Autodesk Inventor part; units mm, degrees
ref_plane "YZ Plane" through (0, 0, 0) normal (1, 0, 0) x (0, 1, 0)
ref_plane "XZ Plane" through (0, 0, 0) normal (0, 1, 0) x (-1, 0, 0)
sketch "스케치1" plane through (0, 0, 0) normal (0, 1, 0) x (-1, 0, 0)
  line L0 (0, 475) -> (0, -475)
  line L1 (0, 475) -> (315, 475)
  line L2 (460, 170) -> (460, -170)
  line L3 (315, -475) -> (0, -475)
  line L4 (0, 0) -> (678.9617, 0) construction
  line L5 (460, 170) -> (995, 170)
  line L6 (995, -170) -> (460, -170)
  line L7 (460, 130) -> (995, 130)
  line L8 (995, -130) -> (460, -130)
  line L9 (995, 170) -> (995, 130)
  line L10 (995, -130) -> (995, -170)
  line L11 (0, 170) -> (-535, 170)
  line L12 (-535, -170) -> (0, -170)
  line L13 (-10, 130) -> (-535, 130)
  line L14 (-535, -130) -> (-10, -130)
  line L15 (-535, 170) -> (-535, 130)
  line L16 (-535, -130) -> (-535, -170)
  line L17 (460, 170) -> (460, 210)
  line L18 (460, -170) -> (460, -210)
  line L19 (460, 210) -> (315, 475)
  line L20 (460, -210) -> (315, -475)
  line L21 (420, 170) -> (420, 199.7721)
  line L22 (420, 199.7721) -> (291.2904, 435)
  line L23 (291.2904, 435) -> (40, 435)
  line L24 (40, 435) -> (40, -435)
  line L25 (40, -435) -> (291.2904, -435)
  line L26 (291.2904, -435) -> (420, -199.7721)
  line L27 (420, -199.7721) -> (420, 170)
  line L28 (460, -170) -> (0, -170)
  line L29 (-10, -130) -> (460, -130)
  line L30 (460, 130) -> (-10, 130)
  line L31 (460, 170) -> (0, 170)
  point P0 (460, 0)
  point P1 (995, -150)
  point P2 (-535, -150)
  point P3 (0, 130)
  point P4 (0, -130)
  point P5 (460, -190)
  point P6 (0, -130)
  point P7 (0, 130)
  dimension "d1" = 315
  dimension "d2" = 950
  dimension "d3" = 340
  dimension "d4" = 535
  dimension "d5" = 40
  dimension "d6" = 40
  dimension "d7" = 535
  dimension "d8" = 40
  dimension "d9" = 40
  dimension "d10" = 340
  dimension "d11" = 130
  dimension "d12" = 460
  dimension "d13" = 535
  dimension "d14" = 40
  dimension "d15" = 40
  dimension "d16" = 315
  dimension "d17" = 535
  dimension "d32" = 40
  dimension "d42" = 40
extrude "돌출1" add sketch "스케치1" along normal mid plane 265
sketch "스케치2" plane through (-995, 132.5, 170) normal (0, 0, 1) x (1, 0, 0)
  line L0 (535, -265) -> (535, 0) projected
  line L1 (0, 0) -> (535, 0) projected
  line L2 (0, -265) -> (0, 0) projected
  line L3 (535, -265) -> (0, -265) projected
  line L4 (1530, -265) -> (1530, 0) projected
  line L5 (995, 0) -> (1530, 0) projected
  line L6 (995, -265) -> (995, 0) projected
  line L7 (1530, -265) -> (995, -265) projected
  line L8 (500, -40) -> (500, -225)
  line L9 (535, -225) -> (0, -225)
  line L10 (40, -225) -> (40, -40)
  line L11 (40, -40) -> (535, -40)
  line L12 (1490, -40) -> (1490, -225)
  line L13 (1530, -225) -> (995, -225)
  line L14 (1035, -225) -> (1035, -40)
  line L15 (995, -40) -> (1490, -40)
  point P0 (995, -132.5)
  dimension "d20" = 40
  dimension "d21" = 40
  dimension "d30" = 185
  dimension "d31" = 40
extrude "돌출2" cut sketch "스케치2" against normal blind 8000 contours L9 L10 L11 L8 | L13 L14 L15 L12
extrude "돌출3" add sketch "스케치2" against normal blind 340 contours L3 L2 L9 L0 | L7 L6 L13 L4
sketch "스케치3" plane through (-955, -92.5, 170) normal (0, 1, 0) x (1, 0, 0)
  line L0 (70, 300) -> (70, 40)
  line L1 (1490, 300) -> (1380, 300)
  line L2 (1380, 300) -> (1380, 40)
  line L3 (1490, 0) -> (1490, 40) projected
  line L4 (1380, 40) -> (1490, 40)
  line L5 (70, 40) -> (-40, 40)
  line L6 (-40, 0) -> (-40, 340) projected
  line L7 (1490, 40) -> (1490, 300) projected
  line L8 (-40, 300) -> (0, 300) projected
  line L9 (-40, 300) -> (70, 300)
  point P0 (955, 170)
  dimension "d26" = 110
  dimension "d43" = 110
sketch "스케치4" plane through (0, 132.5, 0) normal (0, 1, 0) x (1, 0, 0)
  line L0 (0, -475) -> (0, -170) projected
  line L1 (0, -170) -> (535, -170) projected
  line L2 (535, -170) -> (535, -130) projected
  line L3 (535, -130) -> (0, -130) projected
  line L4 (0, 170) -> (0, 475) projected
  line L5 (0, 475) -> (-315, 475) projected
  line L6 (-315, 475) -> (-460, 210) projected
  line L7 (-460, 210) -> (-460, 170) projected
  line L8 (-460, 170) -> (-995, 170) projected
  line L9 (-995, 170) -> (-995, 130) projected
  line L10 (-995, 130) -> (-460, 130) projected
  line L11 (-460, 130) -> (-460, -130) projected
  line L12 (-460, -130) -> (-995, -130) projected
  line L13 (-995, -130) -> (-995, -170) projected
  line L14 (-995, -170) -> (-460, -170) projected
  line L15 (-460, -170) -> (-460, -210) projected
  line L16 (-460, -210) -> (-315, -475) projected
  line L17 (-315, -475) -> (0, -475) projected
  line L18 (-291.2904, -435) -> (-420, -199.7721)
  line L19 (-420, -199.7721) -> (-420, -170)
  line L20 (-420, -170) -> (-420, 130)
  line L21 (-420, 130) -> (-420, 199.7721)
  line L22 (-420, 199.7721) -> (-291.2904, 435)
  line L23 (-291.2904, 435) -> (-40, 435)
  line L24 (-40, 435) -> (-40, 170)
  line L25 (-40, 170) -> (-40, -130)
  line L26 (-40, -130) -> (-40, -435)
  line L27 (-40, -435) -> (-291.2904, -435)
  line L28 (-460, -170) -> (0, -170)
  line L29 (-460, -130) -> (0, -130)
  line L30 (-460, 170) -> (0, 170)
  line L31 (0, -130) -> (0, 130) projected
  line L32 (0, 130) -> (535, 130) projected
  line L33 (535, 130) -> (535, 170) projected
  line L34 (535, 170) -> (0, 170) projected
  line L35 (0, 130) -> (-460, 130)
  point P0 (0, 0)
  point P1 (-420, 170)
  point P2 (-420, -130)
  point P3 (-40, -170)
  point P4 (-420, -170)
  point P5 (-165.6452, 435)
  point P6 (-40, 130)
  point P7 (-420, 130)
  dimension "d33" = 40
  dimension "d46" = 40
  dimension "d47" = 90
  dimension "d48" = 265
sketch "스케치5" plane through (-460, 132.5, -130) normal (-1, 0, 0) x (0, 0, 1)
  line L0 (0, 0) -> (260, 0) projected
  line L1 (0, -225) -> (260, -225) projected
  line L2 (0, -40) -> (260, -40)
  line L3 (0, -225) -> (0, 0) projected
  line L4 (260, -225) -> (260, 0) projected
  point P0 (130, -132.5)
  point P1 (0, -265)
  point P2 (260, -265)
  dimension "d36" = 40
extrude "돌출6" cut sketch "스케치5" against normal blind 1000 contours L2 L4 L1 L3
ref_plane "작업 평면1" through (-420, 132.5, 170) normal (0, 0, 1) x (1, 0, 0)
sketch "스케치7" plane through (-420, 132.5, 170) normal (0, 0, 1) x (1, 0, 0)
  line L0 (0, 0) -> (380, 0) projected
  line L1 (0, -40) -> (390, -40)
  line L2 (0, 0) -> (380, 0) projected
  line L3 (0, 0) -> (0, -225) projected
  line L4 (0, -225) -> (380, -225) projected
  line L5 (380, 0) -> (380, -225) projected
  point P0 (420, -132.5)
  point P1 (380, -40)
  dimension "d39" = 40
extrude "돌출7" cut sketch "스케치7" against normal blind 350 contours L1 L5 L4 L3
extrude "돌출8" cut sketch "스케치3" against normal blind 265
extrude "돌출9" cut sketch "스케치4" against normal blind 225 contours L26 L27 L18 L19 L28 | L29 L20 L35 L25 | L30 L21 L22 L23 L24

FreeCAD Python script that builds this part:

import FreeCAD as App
import Part
import Sketcher
from FreeCAD import Vector
Q = App.Units.Quantity

doc = App.newDocument("Part")
body = doc.addObject("PartDesign::Body", "Body")

sketch1 = body.newObject("Sketcher::SketchObject", "Sketch")
sketch1.AttachmentSupport = (doc.getObject("XZ_Plane"), [""])
sketch1.MapMode = "FlatFace"
sketch1.addGeometry(Part.LineSegment(Vector(-315, 475, 0), Vector(0, 475, 0)), False)
sketch1.addGeometry(Part.LineSegment(Vector(0, 475, 0), Vector(0, 170, 0)), False)
sketch1.addGeometry(Part.LineSegment(Vector(0, 170, 0), Vector(535, 170, 0)), False)
sketch1.addGeometry(Part.LineSegment(Vector(535, 170, 0), Vector(535, 130, 0)), False)
sketch1.addGeometry(Part.LineSegment(Vector(535, 130, 0), Vector(0, 130, 0)), False)
sketch1.addGeometry(Part.LineSegment(Vector(0, 130, 0), Vector(0, -130, 0)), False)
sketch1.addGeometry(Part.LineSegment(Vector(0, -130, 0), Vector(535, -130, 0)), False)
sketch1.addGeometry(Part.LineSegment(Vector(535, -130, 0), Vector(535, -170, 0)), False)
sketch1.addGeometry(Part.LineSegment(Vector(535, -170, 0), Vector(0, -170, 0)), False)
sketch1.addGeometry(Part.LineSegment(Vector(0, -170, 0), Vector(0, -475, 0)), False)
sketch1.addGeometry(Part.LineSegment(Vector(0, -475, 0), Vector(-315, -475, 0)), False)
sketch1.addGeometry(Part.LineSegment(Vector(-315, -475, 0), Vector(-460, -210, 0)), False)
sketch1.addGeometry(Part.LineSegment(Vector(-460, -210, 0), Vector(-460, -170, 0)), False)
sketch1.addGeometry(Part.LineSegment(Vector(-460, -170, 0), Vector(-995, -170, 0)), False)
sketch1.addGeometry(Part.LineSegment(Vector(-995, -170, 0), Vector(-995, -130, 0)), False)
sketch1.addGeometry(Part.LineSegment(Vector(-995, -130, 0), Vector(-460, -130, 0)), False)
sketch1.addGeometry(Part.LineSegment(Vector(-460, -130, 0), Vector(-460, 130, 0)), False)
sketch1.addGeometry(Part.LineSegment(Vector(-460, 130, 0), Vector(-995, 130, 0)), False)
sketch1.addGeometry(Part.LineSegment(Vector(-995, 130, 0), Vector(-995, 170, 0)), False)
sketch1.addGeometry(Part.LineSegment(Vector(-995, 170, 0), Vector(-460, 170, 0)), False)
sketch1.addGeometry(Part.LineSegment(Vector(-460, 170, 0), Vector(-460, 210, 0)), False)
sketch1.addGeometry(Part.LineSegment(Vector(-460, 210, 0), Vector(-315, 475, 0)), False)
sketch1.addConstraint(Sketcher.Constraint("Coincident", 0, 2, 1, 1))
sketch1.addConstraint(Sketcher.Constraint("Coincident", 1, 2, 2, 1))
sketch1.addConstraint(Sketcher.Constraint("Coincident", 2, 2, 3, 1))
sketch1.addConstraint(Sketcher.Constraint("Coincident", 3, 2, 4, 1))
sketch1.addConstraint(Sketcher.Constraint("Coincident", 4, 2, 5, 1))
sketch1.addConstraint(Sketcher.Constraint("Coincident", 5, 2, 6, 1))
sketch1.addConstraint(Sketcher.Constraint("Coincident", 6, 2, 7, 1))
sketch1.addConstraint(Sketcher.Constraint("Coincident", 7, 2, 8, 1))
sketch1.addConstraint(Sketcher.Constraint("Coincident", 8, 2, 9, 1))
sketch1.addConstraint(Sketcher.Constraint("Coincident", 9, 2, 10, 1))
sketch1.addConstraint(Sketcher.Constraint("Coincident", 10, 2, 11, 1))
sketch1.addConstraint(Sketcher.Constraint("Coincident", 11, 2, 12, 1))
sketch1.addConstraint(Sketcher.Constraint("Coincident", 12, 2, 13, 1))
sketch1.addConstraint(Sketcher.Constraint("Coincident", 13, 2, 14, 1))
sketch1.addConstraint(Sketcher.Constraint("Coincident", 14, 2, 15, 1))
sketch1.addConstraint(Sketcher.Constraint("Coincident", 15, 2, 16, 1))
sketch1.addConstraint(Sketcher.Constraint("Coincident", 16, 2, 17, 1))
sketch1.addConstraint(Sketcher.Constraint("Coincident", 17, 2, 18, 1))
sketch1.addConstraint(Sketcher.Constraint("Coincident", 18, 2, 19, 1))
sketch1.addConstraint(Sketcher.Constraint("Coincident", 19, 2, 20, 1))
sketch1.addConstraint(Sketcher.Constraint("Coincident", 20, 2, 21, 1))
sketch1.addConstraint(Sketcher.Constraint("Coincident", 21, 2, 0, 1))
sketch1.addConstraint(Sketcher.Constraint("Horizontal", 0))
sketch1.addConstraint(Sketcher.Constraint("Vertical", 1))
sketch1.addConstraint(Sketcher.Constraint("Horizontal", 2))
sketch1.addConstraint(Sketcher.Constraint("Vertical", 3))
sketch1.addConstraint(Sketcher.Constraint("Horizontal", 4))
sketch1.addConstraint(Sketcher.Constraint("Vertical", 5))
sketch1.addConstraint(Sketcher.Constraint("Horizontal", 6))
sketch1.addConstraint(Sketcher.Constraint("Vertical", 7))
sketch1.addConstraint(Sketcher.Constraint("Horizontal", 8))
sketch1.addConstraint(Sketcher.Constraint("Vertical", 9))
sketch1.addConstraint(Sketcher.Constraint("Horizontal", 10))
sketch1.addConstraint(Sketcher.Constraint("Vertical", 12))
sketch1.addConstraint(Sketcher.Constraint("Horizontal", 13))
sketch1.addConstraint(Sketcher.Constraint("Vertical", 14))
sketch1.addConstraint(Sketcher.Constraint("Horizontal", 15))
sketch1.addConstraint(Sketcher.Constraint("Vertical", 16))
sketch1.addConstraint(Sketcher.Constraint("Horizontal", 17))
sketch1.addConstraint(Sketcher.Constraint("Vertical", 18))
sketch1.addConstraint(Sketcher.Constraint("Horizontal", 19))
sketch1.addConstraint(Sketcher.Constraint("Vertical", 20))
sketch1.addConstraint(Sketcher.Constraint("Symmetric", 4, 2, 5, 2, -1, 1))
sketch1.addConstraint(Sketcher.Constraint("Symmetric", 1, 2, 8, 2, -1, 1))
sketch1.addConstraint(Sketcher.Constraint("Symmetric", 0, 2, 9, 2, -1))
sketch1.addConstraint(Sketcher.Constraint("Symmetric", 14, 2, 17, 2, -1))
sketch1.addConstraint(Sketcher.Constraint("Symmetric", 12, 2, 19, 2, -1))
sketch1.addConstraint(Sketcher.Constraint("Horizontal", 8, 2, 12, 2))
sketch1.addConstraint(Sketcher.Constraint("Horizontal", 6, 2, 14, 2))
sketch1.addConstraint(Sketcher.Constraint("Vertical", 3, 2, 6, 2))
sketch1.addConstraint(Sketcher.Constraint("Vertical", 12, 2, 15, 2))
sketch1.addConstraint(Sketcher.Constraint("Vertical", 10, 2, 21, 2))
sketch1.addConstraint(Sketcher.Constraint("Equal", 8, 13))
sketch1.addConstraint(Sketcher.Constraint("Equal", 7, 12))
sketch1.addConstraint(Sketcher.Constraint("Equal", 18, 20))
sketch1.addConstraint(Sketcher.Constraint("DistanceX", 0, 1, 0, 2, Q("315 mm")))
sketch1.addConstraint(Sketcher.Constraint("DistanceX", 2, 1, 2, 2, Q("535 mm")))
sketch1.addConstraint(Sketcher.Constraint("DistanceY", 3, 2, 3, 1, Q("40 mm")))
sketch1.addConstraint(Sketcher.Constraint("DistanceY", -1, 1, 3, 2, Q("130 mm")))
sketch1.addConstraint(Sketcher.Constraint("DistanceX", 11, 2, -1, 1, Q("460 mm")))
sketch1.addConstraint(Sketcher.Constraint("DistanceY", 1, 2, 1, 1, Q("305 mm")))
pad1 = body.newObject("PartDesign::Pad", "Pad")
pad1.Profile = sketch1
pad1.Length = 265
pad1.Midplane = True

sketch2 = body.newObject("Sketcher::SketchObject", "Sketch001")
sketch2.AttachmentSupport = (doc.getObject("XY_Plane"), [""])
sketch2.MapMode = "FlatFace"
sketch2.AttachmentOffset = App.Placement(Vector(0, 0, 170), App.Rotation())
sketch2.addGeometry(Part.LineSegment(Vector(-955, -92, 0), Vector(-495, -92, 0)), False)
sketch2.addGeometry(Part.LineSegment(Vector(-495, -92, 0), Vector(-495, 92, 0)), False)
sketch2.addGeometry(Part.LineSegment(Vector(-495, 92, 0), Vector(-955, 92, 0)), False)
sketch2.addGeometry(Part.LineSegment(Vector(-955, 92, 0), Vector(-955, -92, 0)), False)
sketch2.addGeometry(Part.LineSegment(Vector(40, -92, 0), Vector(495, -92, 0)), False)
sketch2.addGeometry(Part.LineSegment(Vector(495, -92, 0), Vector(495, 92, 0)), False)
sketch2.addGeometry(Part.LineSegment(Vector(495, 92, 0), Vector(40, 92, 0)), False)
sketch2.addGeometry(Part.LineSegment(Vector(40, 92, 0), Vector(40, -92, 0)), False)
sketch2.addConstraint(Sketcher.Constraint("Coincident", 0, 2, 1, 1))
sketch2.addConstraint(Sketcher.Constraint("Coincident", 1, 2, 2, 1))
sketch2.addConstraint(Sketcher.Constraint("Coincident", 2, 2, 3, 1))
sketch2.addConstraint(Sketcher.Constraint("Coincident", 3, 2, 0, 1))
sketch2.addConstraint(Sketcher.Constraint("Coincident", 4, 2, 5, 1))
sketch2.addConstraint(Sketcher.Constraint("Coincident", 5, 2, 6, 1))
sketch2.addConstraint(Sketcher.Constraint("Coincident", 6, 2, 7, 1))
sketch2.addConstraint(Sketcher.Constraint("Coincident", 7, 2, 4, 1))
sketch2.addConstraint(Sketcher.Constraint("Horizontal", 0))
sketch2.addConstraint(Sketcher.Constraint("Vertical", 1))
sketch2.addConstraint(Sketcher.Constraint("Horizontal", 2))
sketch2.addConstraint(Sketcher.Constraint("Vertical", 3))
sketch2.addConstraint(Sketcher.Constraint("Horizontal", 4))
sketch2.addConstraint(Sketcher.Constraint("Vertical", 5))
sketch2.addConstraint(Sketcher.Constraint("Horizontal", 6))
sketch2.addConstraint(Sketcher.Constraint("Vertical", 7))
sketch2.addConstraint(Sketcher.Constraint("Symmetric", 1, 2, 4, 2, -1, 1))
sketch2.addConstraint(Sketcher.Constraint("Horizontal", 3, 2, 4, 2))
sketch2.addConstraint(Sketcher.Constraint("Horizontal", 2, 2, 5, 2))
sketch2.addConstraint(Sketcher.Constraint("DistanceY", 1, 1, 1, 2, Q("185 mm")))
sketch2.addConstraint(Sketcher.Constraint("DistanceX", -1, 1, 6, 2, Q("40 mm")))
sketch2.addConstraint(Sketcher.Constraint("DistanceX", 0, 1, 0, 2, Q("460 mm")))
sketch2.addConstraint(Sketcher.Constraint("DistanceX", 4, 1, 4, 2, Q("455 mm")))
pocket1 = body.newObject("PartDesign::Pocket", "Pocket")
pocket1.Profile = sketch2
pocket1.Length = 8000

sketch3 = body.newObject("Sketcher::SketchObject", "Sketch002")
sketch3.AttachmentSupport = (doc.getObject("XY_Plane"), [""])
sketch3.MapMode = "FlatFace"
sketch3.AttachmentOffset = App.Placement(Vector(0, 0, 170), App.Rotation())
sketch3.addGeometry(Part.LineSegment(Vector(-995, -132, 0), Vector(-460, -132, 0)), False)
sketch3.addGeometry(Part.LineSegment(Vector(-460, -132, 0), Vector(-460, -92, 0)), False)
sketch3.addGeometry(Part.LineSegment(Vector(-460, -92, 0), Vector(-995, -92, 0)), False)
sketch3.addGeometry(Part.LineSegment(Vector(-995, -92, 0), Vector(-995, -132, 0)), False)
sketch3.addGeometry(Part.LineSegment(Vector(0, -132, 0), Vector(535, -132, 0)), False)
sketch3.addGeometry(Part.LineSegment(Vector(535, -132, 0), Vector(535, -92, 0)), False)
sketch3.addGeometry(Part.LineSegment(Vector(535, -92, 0), Vector(0, -92, 0)), False)
sketch3.addGeometry(Part.LineSegment(Vector(0, -92, 0), Vector(0, -132, 0)), False)
sketch3.addConstraint(Sketcher.Constraint("Coincident", 0, 2, 1, 1))
sketch3.addConstraint(Sketcher.Constraint("Coincident", 1, 2, 2, 1))
sketch3.addConstraint(Sketcher.Constraint("Coincident", 2, 2, 3, 1))
sketch3.addConstraint(Sketcher.Constraint("Coincident", 3, 2, 0, 1))
sketch3.addConstraint(Sketcher.Constraint("Coincident", 4, 2, 5, 1))
sketch3.addConstraint(Sketcher.Constraint("Coincident", 5, 2, 6, 1))
sketch3.addConstraint(Sketcher.Constraint("Coincident", 6, 2, 7, 1))
sketch3.addConstraint(Sketcher.Constraint("Coincident", 7, 2, 4, 1))
sketch3.addConstraint(Sketcher.Constraint("Horizontal", 0))
sketch3.addConstraint(Sketcher.Constraint("Vertical", 1))
sketch3.addConstraint(Sketcher.Constraint("Horizontal", 2))
sketch3.addConstraint(Sketcher.Constraint("Vertical", 3))
sketch3.addConstraint(Sketcher.Constraint("Horizontal", 4))
sketch3.addConstraint(Sketcher.Constraint("Vertical", 5))
sketch3.addConstraint(Sketcher.Constraint("Horizontal", 6))
sketch3.addConstraint(Sketcher.Constraint("Vertical", 7))
sketch3.addConstraint(Sketcher.Constraint("PointOnObject", 6, 2, -2))
sketch3.addConstraint(Sketcher.Constraint("Horizontal", 3, 2, 4, 2))
sketch3.addConstraint(Sketcher.Constraint("Horizontal", 2, 2, 5, 2))
sketch3.addConstraint(Sketcher.Constraint("Equal", 2, 4))
sketch3.addConstraint(Sketcher.Constraint("DistanceY", 1, 1, 1, 2, Q("40 mm")))
sketch3.addConstraint(Sketcher.Constraint("DistanceX", 0, 1, 0, 2, Q("535 mm")))
sketch3.addConstraint(Sketcher.Constraint("DistanceX", 0, 2, -1, 1, Q("460 mm")))
sketch3.addConstraint(Sketcher.Constraint("DistanceY", 0, 2, -1, 1, Q("132.5 mm")))
pad2 = body.newObject("PartDesign::Pad", "Pad001")
pad2.Profile = sketch3
pad2.Length = 340
pad2.Reversed = True

sketch4 = body.newObject("Sketcher::SketchObject", "Sketch003")
sketch4.AttachmentSupport = (doc.getObject("YZ_Plane"), [""])
sketch4.MapMode = "FlatFace"
sketch4.AttachmentOffset = App.Placement(Vector(0, 0, -460), App.Rotation())
sketch4.addGeometry(Part.LineSegment(Vector(92, 130, 0), Vector(92, -130, 0)), False)
sketch4.addGeometry(Part.LineSegment(Vector(92, -130, 0), Vector(-92, -130, 0)), False)
sketch4.addGeometry(Part.LineSegment(Vector(-92, -130, 0), Vector(-92, 130, 0)), False)
sketch4.addGeometry(Part.LineSegment(Vector(-92, 130, 0), Vector(92, 130, 0)), False)
sketch4.addConstraint(Sketcher.Constraint("Coincident", 0, 2, 1, 1))
sketch4.addConstraint(Sketcher.Constraint("Coincident", 1, 2, 2, 1))
sketch4.addConstraint(Sketcher.Constraint("Coincident", 2, 2, 3, 1))
sketch4.addConstraint(Sketcher.Constraint("Coincident", 3, 2, 0, 1))
sketch4.addConstraint(Sketcher.Constraint("Vertical", 0))
sketch4.addConstraint(Sketcher.Constraint("Horizontal", 1))
sketch4.addConstraint(Sketcher.Constraint("Vertical", 2))
sketch4.addConstraint(Sketcher.Constraint("Horizontal", 3))
sketch4.addConstraint(Sketcher.Constraint("Symmetric", 0, 2, 2, 2, -1, 1))
sketch4.addConstraint(Sketcher.Constraint("DistanceX", 1, 2, 1, 1, Q("185 mm")))
sketch4.addConstraint(Sketcher.Constraint("DistanceY", 0, 2, 0, 1, Q("260 mm")))
pocket2 = body.newObject("PartDesign::Pocket", "Pocket001")
pocket2.Profile = sketch4
pocket2.Length = 1000
pocket2.Reversed = True

sketch5 = body.newObject("Sketcher::SketchObject", "Sketch004")
sketch5.AttachmentSupport = (doc.getObject("XY_Plane"), [""])
sketch5.MapMode = "FlatFace"
sketch5.AttachmentOffset = App.Placement(Vector(0, 0, 170), App.Rotation())
sketch5.addGeometry(Part.LineSegment(Vector(-40, 92, 0), Vector(-420, 92, 0)), False)
sketch5.addGeometry(Part.LineSegment(Vector(-420, 92, 0), Vector(-420, -92, 0)), False)
sketch5.addGeometry(Part.LineSegment(Vector(-420, -92, 0), Vector(-40, -92, 0)), False)
sketch5.addGeometry(Part.LineSegment(Vector(-40, -92, 0), Vector(-40, 92, 0)), False)
sketch5.addConstraint(Sketcher.Constraint("Coincident", 0, 2, 1, 1))
sketch5.addConstraint(Sketcher.Constraint("Coincident", 1, 2, 2, 1))
sketch5.addConstraint(Sketcher.Constraint("Coincident", 2, 2, 3, 1))
sketch5.addConstraint(Sketcher.Constraint("Coincident", 3, 2, 0, 1))
sketch5.addConstraint(Sketcher.Constraint("Horizontal", 0))
sketch5.addConstraint(Sketcher.Constraint("Vertical", 1))
sketch5.addConstraint(Sketcher.Constraint("Horizontal", 2))
sketch5.addConstraint(Sketcher.Constraint("Vertical", 3))
sketch5.addConstraint(Sketcher.Constraint("DistanceX", 2, 2, -1, 1, Q("40 mm")))
sketch5.addConstraint(Sketcher.Constraint("DistanceX", 0, 2, 0, 1, Q("380 mm")))
sketch5.addConstraint(Sketcher.Constraint("DistanceY", 1, 2, 1, 1, Q("185 mm")))
sketch5.addConstraint(Sketcher.Constraint("DistanceY", -1, 1, 0, 2, Q("92.5 mm")))
pocket3 = body.newObject("PartDesign::Pocket", "Pocket002")
pocket3.Profile = sketch5
pocket3.Length = 350

sketch6 = body.newObject("Sketcher::SketchObject", "Sketch005")
sketch6.AttachmentSupport = (doc.getObject("XZ_Plane"), [""])
sketch6.MapMode = "FlatFace"
sketch6.AttachmentOffset = App.Placement(Vector(0, 0, 92.5), App.Rotation())
sketch6.addGeometry(Part.LineSegment(Vector(-885, 130, 0), Vector(-885, -130, 0)), False)
sketch6.addGeometry(Part.LineSegment(Vector(-885, -130, 0), Vector(-995, -130, 0)), False)
sketch6.addGeometry(Part.LineSegment(Vector(-995, -130, 0), Vector(-995, 130, 0)), False)
sketch6.addGeometry(Part.LineSegment(Vector(-995, 130, 0), Vector(-885, 130, 0)), False)
sketch6.addGeometry(Part.LineSegment(Vector(535, 130, 0), Vector(535, -130, 0)), False)
sketch6.addGeometry(Part.LineSegment(Vector(535, -130, 0), Vector(425, -130, 0)), False)
sketch6.addGeometry(Part.LineSegment(Vector(425, -130, 0), Vector(425, 130, 0)), False)
sketch6.addGeometry(Part.LineSegment(Vector(425, 130, 0), Vector(535, 130, 0)), False)
sketch6.addConstraint(Sketcher.Constraint("Coincident", 0, 2, 1, 1))
sketch6.addConstraint(Sketcher.Constraint("Coincident", 1, 2, 2, 1))
sketch6.addConstraint(Sketcher.Constraint("Coincident", 2, 2, 3, 1))
sketch6.addConstraint(Sketcher.Constraint("Coincident", 3, 2, 0, 1))
sketch6.addConstraint(Sketcher.Constraint("Coincident", 4, 2, 5, 1))
sketch6.addConstraint(Sketcher.Constraint("Coincident", 5, 2, 6, 1))
sketch6.addConstraint(Sketcher.Constraint("Coincident", 6, 2, 7, 1))
sketch6.addConstraint(Sketcher.Constraint("Coincident", 7, 2, 4, 1))
sketch6.addConstraint(Sketcher.Constraint("Vertical", 0))
sketch6.addConstraint(Sketcher.Constraint("Horizontal", 1))
sketch6.addConstraint(Sketcher.Constraint("Vertical", 2))
sketch6.addConstraint(Sketcher.Constraint("Horizontal", 3))
sketch6.addConstraint(Sketcher.Constraint("Vertical", 4))
sketch6.addConstraint(Sketcher.Constraint("Horizontal", 5))
sketch6.addConstraint(Sketcher.Constraint("Vertical", 6))
sketch6.addConstraint(Sketcher.Constraint("Horizontal", 7))
sketch6.addConstraint(Sketcher.Constraint("Horizontal", 1, 2, 4, 2))
sketch6.addConstraint(Sketcher.Constraint("Horizontal", 3, 2, 6, 2))
sketch6.addConstraint(Sketcher.Constraint("Equal", 3, 5))
sketch6.addConstraint(Sketcher.Constraint("DistanceX", 1, 2, 1, 1, Q("110 mm")))
sketch6.addConstraint(Sketcher.Constraint("DistanceY", 0, 2, 0, 1, Q("260 mm")))
sketch6.addConstraint(Sketcher.Constraint("DistanceX", 0, 2, -1, 1, Q("885 mm")))
sketch6.addConstraint(Sketcher.Constraint("DistanceY", 0, 2, -1, 1, Q("130 mm")))
sketch6.addConstraint(Sketcher.Constraint("DistanceX", -1, 1, 4, 2, Q("535 mm")))
pocket4 = body.newObject("PartDesign::Pocket", "Pocket003")
pocket4.Profile = sketch6
pocket4.Length = 265
pocket4.Reversed = True

sketch7 = body.newObject("Sketcher::SketchObject", "Sketch006")
sketch7.AttachmentSupport = (doc.getObject("XZ_Plane"), [""])
sketch7.MapMode = "FlatFace"
sketch7.AttachmentOffset = App.Placement(Vector(0, 0, -132.5), App.Rotation())
sketch7.addGeometry(Part.LineSegment(Vector(-40, 435, 0), Vector(-40, 170, 0)), False)
sketch7.addGeometry(Part.LineSegment(Vector(-40, 170, 0), Vector(-420, 170, 0)), False)
sketch7.addGeometry(Part.LineSegment(Vector(-420, 170, 0), Vector(-420, 200, 0)), False)
sketch7.addGeometry(Part.LineSegment(Vector(-420, 200, 0), Vector(-291, 435, 0)), False)
sketch7.addGeometry(Part.LineSegment(Vector(-291, 435, 0), Vector(-40, 435, 0)), False)
sketch7.addGeometry(Part.LineSegment(Vector(-420, 130, 0), Vector(-40, 130, 0)), False)
sketch7.addGeometry(Part.LineSegment(Vector(-40, 130, 0), Vector(-40, -130, 0)), False)
sketch7.addGeometry(Part.LineSegment(Vector(-40, -130, 0), Vector(-420, -130, 0)), False)
sketch7.addGeometry(Part.LineSegment(Vector(-420, -130, 0), Vector(-420, 130, 0)), False)
sketch7.addGeometry(Part.LineSegment(Vector(-420, -170, 0), Vector(-40, -170, 0)), False)
sketch7.addGeometry(Part.LineSegment(Vector(-40, -170, 0), Vector(-40, -435, 0)), False)
sketch7.addGeometry(Part.LineSegment(Vector(-40, -435, 0), Vector(-291, -435, 0)), False)
sketch7.addGeometry(Part.LineSegment(Vector(-291, -435, 0), Vector(-420, -200, 0)), False)
sketch7.addGeometry(Part.LineSegment(Vector(-420, -200, 0), Vector(-420, -170, 0)), False)
sketch7.addConstraint(Sketcher.Constraint("Coincident", 0, 2, 1, 1))
sketch7.addConstraint(Sketcher.Constraint("Coincident", 1, 2, 2, 1))
sketch7.addConstraint(Sketcher.Constraint("Coincident", 2, 2, 3, 1))
sketch7.addConstraint(Sketcher.Constraint("Coincident", 3, 2, 4, 1))
sketch7.addConstraint(Sketcher.Constraint("Coincident", 4, 2, 0, 1))
sketch7.addConstraint(Sketcher.Constraint("Coincident", 5, 2, 6, 1))
sketch7.addConstraint(Sketcher.Constraint("Coincident", 6, 2, 7, 1))
sketch7.addConstraint(Sketcher.Constraint("Coincident", 7, 2, 8, 1))
sketch7.addConstraint(Sketcher.Constraint("Coincident", 8, 2, 5, 1))
sketch7.addConstraint(Sketcher.Constraint("Coincident", 9, 2, 10, 1))
sketch7.addConstraint(Sketcher.Constraint("Coincident", 10, 2, 11, 1))
sketch7.addConstraint(Sketcher.Constraint("Coincident", 11, 2, 12, 1))
sketch7.addConstraint(Sketcher.Constraint("Coincident", 12, 2, 13, 1))
sketch7.addConstraint(Sketcher.Constraint("Coincident", 13, 2, 9, 1))
sketch7.addConstraint(Sketcher.Constraint("Vertical", 0))
sketch7.addConstraint(Sketcher.Constraint("Horizontal", 1))
sketch7.addConstraint(Sketcher.Constraint("Vertical", 2))
sketch7.addConstraint(Sketcher.Constraint("Horizontal", 4))
sketch7.addConstraint(Sketcher.Constraint("Horizontal", 5))
sketch7.addConstraint(Sketcher.Constraint("Vertical", 6))
sketch7.addConstraint(Sketcher.Constraint("Horizontal", 7))
sketch7.addConstraint(Sketcher.Constraint("Vertical", 8))
sketch7.addConstraint(Sketcher.Constraint("Horizontal", 9))
sketch7.addConstraint(Sketcher.Constraint("Vertical", 10))
sketch7.addConstraint(Sketcher.Constraint("Horizontal", 11))
sketch7.addConstraint(Sketcher.Constraint("Vertical", 13))
sketch7.addConstraint(Sketcher.Constraint("Symmetric", 0, 2, 9, 2, -1))
sketch7.addConstraint(Sketcher.Constraint("Symmetric", 3, 2, 11, 2, -1))
sketch7.addConstraint(Sketcher.Constraint("Symmetric", 2, 2, 12, 2, -1))
sketch7.addConstraint(Sketcher.Constraint("Vertical", 4, 2, 5, 2))
sketch7.addConstraint(Sketcher.Constraint("Vertical", 2, 2, 7, 2))
sketch7.addConstraint(Sketcher.Constraint("DistanceY", 0, 2, 0, 1, Q("265 mm")))
sketch7.addConstraint(Sketcher.Constraint("DistanceX", 0, 2, -1, 1, Q("40 mm")))
sketch7.addConstraint(Sketcher.Constraint("DistanceY", 5, 2, 0, 2, Q("40 mm")))
sketch7.addConstraint(Sketcher.Constraint("DistanceY", 9, 2, 6, 2, Q("40 mm")))
sketch7.addConstraint(Sketcher.Constraint("DistanceX", 1, 2, 1, 1, Q("380 mm")))
sketch7.addConstraint(Sketcher.Constraint("DistanceY", 6, 2, 6, 1, Q("260 mm")))
sketch7.addConstraint(Sketcher.Constraint("DistanceY", 2, 1, 2, 2, Q("29.772 mm")))
sketch7.addConstraint(Sketcher.Constraint("DistanceX", 4, 1, 4, 2, Q("251.2904 mm")))
pocket5 = body.newObject("PartDesign::Pocket", "Pocket004")
pocket5.Profile = sketch7
pocket5.Length = 225
pocket5.Reversed = True

doc.recompute()
